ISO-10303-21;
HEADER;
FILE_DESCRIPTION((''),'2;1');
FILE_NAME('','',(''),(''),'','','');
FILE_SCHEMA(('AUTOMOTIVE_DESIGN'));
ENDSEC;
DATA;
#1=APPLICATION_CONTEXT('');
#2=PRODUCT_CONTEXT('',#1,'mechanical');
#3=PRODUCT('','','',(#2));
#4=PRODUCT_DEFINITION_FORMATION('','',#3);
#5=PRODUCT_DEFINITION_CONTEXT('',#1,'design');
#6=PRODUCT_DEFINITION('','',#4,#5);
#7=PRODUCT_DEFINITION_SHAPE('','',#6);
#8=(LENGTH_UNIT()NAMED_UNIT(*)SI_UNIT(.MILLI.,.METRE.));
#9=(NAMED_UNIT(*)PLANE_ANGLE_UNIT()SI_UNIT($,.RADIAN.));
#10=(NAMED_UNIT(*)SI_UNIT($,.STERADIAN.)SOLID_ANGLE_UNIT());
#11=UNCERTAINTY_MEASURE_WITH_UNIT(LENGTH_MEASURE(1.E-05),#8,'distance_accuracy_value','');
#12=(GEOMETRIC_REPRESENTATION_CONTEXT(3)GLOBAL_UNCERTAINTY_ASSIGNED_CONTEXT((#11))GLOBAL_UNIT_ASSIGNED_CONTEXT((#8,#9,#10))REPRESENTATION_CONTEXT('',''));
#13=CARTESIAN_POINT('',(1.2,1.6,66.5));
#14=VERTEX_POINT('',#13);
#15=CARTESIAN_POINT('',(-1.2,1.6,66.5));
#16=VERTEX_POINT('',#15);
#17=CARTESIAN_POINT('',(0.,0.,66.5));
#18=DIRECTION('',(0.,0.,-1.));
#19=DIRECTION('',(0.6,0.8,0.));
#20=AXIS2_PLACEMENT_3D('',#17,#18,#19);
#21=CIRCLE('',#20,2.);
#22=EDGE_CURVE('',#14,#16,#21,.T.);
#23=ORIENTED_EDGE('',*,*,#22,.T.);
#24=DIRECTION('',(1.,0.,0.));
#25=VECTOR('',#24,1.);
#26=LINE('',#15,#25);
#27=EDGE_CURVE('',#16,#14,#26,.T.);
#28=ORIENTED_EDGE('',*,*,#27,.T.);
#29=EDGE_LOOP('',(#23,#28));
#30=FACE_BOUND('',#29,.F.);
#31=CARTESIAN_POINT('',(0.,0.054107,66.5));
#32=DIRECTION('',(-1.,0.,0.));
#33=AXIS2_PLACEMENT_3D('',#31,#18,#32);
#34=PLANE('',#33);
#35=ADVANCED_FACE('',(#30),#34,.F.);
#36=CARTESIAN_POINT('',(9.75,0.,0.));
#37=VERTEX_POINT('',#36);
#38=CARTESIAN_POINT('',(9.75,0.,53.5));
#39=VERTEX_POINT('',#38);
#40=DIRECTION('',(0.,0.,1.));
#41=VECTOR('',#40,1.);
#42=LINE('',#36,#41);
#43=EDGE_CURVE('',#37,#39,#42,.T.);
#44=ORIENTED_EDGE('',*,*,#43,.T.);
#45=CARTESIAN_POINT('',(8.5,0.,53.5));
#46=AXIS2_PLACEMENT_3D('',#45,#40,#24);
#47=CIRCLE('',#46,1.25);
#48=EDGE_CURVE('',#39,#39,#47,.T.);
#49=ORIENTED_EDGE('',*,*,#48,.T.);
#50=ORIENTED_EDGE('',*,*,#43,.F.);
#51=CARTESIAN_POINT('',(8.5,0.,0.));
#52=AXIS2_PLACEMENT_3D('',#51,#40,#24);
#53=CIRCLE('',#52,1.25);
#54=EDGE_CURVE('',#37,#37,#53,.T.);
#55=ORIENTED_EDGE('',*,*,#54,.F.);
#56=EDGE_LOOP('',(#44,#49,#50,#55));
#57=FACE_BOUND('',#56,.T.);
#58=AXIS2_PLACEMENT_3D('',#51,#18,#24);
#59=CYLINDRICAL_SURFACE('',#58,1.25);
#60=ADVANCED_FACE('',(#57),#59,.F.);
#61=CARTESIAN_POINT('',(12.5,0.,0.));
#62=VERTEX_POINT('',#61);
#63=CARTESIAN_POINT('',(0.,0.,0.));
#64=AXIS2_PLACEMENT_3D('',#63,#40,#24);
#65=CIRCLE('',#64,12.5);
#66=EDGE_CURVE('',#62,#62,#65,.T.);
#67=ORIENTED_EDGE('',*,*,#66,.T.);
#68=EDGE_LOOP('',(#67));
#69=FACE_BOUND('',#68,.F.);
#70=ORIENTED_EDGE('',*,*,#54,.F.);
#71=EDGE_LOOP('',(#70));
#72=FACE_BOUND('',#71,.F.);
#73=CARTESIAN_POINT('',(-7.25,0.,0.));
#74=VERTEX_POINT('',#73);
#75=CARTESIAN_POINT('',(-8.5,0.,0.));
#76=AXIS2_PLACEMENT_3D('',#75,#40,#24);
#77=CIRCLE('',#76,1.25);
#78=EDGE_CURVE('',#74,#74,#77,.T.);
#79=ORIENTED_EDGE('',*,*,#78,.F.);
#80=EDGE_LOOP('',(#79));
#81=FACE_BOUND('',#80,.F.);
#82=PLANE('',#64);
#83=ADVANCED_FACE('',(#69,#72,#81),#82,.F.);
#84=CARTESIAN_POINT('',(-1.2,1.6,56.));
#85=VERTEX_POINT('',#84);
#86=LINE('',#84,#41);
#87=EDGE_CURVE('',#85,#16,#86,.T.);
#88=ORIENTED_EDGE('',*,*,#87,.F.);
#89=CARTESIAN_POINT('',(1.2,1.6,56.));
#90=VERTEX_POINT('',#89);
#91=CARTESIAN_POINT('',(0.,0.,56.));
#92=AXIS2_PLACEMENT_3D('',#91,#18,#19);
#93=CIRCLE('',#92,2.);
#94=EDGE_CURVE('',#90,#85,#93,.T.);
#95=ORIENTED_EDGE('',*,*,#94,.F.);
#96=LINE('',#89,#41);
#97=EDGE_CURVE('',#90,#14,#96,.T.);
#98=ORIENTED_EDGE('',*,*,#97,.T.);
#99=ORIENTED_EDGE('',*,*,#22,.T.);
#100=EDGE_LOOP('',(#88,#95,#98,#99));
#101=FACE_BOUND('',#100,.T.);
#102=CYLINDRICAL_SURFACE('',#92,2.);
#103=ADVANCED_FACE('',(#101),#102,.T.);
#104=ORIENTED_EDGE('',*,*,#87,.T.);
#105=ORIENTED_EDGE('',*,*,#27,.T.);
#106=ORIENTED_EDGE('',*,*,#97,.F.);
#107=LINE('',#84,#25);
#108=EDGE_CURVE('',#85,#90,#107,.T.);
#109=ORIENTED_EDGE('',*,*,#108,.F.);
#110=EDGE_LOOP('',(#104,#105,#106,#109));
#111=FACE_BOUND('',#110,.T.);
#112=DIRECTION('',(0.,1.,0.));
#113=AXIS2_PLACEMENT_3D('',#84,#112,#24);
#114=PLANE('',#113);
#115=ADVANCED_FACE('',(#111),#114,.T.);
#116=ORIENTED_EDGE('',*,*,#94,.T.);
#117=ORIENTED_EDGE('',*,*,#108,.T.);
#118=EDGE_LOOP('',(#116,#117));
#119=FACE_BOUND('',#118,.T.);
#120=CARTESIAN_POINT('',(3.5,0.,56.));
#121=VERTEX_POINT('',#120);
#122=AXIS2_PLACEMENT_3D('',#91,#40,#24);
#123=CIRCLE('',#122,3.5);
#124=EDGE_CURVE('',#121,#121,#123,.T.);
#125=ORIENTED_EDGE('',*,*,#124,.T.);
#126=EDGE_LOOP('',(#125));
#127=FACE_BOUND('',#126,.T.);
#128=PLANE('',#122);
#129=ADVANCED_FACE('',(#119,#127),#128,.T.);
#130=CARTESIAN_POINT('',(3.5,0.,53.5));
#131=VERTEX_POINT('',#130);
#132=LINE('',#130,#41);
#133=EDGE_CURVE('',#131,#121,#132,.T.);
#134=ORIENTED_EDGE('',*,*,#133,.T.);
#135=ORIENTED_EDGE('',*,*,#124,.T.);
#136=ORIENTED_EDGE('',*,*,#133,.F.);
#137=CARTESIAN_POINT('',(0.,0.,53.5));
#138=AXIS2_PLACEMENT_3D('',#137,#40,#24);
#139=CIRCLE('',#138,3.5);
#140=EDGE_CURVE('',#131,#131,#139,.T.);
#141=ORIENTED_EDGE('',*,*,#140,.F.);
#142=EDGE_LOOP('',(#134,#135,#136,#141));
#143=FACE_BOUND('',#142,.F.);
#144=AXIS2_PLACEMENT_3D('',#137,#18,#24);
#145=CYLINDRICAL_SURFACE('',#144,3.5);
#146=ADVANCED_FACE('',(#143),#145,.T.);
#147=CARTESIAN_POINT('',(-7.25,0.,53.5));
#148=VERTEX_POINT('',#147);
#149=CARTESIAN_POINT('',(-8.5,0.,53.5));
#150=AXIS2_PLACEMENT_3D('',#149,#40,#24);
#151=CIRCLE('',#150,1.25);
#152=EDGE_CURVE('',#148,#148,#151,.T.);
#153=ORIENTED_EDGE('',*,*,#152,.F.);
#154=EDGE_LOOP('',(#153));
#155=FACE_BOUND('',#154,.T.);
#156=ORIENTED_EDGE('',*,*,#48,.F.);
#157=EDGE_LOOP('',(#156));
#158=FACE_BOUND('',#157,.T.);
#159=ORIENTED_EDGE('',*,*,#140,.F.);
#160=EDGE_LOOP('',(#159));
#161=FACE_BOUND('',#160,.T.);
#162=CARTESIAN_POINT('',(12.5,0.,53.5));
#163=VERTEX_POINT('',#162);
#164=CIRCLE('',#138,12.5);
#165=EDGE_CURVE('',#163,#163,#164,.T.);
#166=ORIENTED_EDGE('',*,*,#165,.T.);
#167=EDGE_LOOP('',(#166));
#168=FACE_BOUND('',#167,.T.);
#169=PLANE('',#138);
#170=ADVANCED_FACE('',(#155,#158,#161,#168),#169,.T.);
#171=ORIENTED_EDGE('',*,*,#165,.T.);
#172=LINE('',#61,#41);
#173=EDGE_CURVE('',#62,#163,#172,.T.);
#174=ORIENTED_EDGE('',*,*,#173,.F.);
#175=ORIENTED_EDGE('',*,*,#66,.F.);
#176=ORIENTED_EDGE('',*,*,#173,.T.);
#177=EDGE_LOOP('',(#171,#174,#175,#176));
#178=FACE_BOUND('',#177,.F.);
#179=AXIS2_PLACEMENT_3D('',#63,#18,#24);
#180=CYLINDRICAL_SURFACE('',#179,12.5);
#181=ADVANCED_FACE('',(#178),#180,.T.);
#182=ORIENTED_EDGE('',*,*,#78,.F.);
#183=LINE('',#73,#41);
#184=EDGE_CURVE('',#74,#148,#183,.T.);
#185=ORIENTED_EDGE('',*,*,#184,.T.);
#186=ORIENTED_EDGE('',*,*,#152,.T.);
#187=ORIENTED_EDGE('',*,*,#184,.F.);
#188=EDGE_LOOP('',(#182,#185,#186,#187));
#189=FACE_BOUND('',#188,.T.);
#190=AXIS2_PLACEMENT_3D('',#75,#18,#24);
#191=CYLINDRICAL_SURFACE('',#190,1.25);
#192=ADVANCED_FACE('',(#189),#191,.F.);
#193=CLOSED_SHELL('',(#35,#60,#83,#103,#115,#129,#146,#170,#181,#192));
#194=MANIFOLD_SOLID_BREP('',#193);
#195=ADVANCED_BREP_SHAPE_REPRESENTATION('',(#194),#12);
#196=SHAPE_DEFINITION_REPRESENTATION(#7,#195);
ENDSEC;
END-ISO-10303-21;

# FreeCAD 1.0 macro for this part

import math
import FreeCAD as App
import Part
import Sketcher
Q = App.Units.Quantity

doc = App.newDocument("Part")
body = doc.addObject("PartDesign::Body", "Body")

sketch1 = body.newObject("Sketcher::SketchObject", "Sketch")
sketch1.AttachmentSupport = (doc.getObject("XY_Plane"), [""])
sketch1.MapMode = "FlatFace"
sketch1.addGeometry([
    Part.Circle(App.Vector(0, 0, 0), App.Vector(0, 0, 1), 12.5),
    Part.Circle(App.Vector(-8.5, 0, 0), App.Vector(0, 0, 1), 1.25),
    Part.Circle(App.Vector(8.5, 0, 0), App.Vector(0, 0, 1), 1.25),
], False)
sketch1.addConstraint([
    Sketcher.Constraint("Coincident", 0, 3, -1, 1),
    Sketcher.Constraint("Equal", 1, 2),
    Sketcher.Constraint("Symmetric", 1, 3, 2, 3, -1, 1),
    Sketcher.Constraint("PointOnObject", 1, 3, -1),
    Sketcher.Constraint("Diameter", 0, Q("25 mm")),
    Sketcher.Constraint("Diameter", 1, Q("2.5 mm")),
    Sketcher.Constraint("DistanceX", 1, 3, 2, 3, Q("17 mm")),
])
pad1 = body.newObject("PartDesign::Pad", "Pad")
pad1.Profile = sketch1
pad1.Length = 53.5

sketch2 = body.newObject("Sketcher::SketchObject", "Sketch001")
sketch2.AttachmentSupport = (doc.getObject("XY_Plane"), [""])
sketch2.MapMode = "FlatFace"
sketch2.AttachmentOffset = App.Placement(App.Vector(0, 0, 53.5), App.Rotation())
sketch2.addGeometry(Part.Circle(App.Vector(0, 0, 0), App.Vector(0, 0, 1), 3.5), False)
sketch2.addConstraint([
    Sketcher.Constraint("Coincident", 0, 3, -1, 1),
    Sketcher.Constraint("Diameter", 0, Q("7 mm")),
])
pad2 = body.newObject("PartDesign::Pad", "Pad001")
pad2.Profile = sketch2
pad2.Length = 2.5

sketch3 = body.newObject("Sketcher::SketchObject", "Sketch002")
sketch3.AttachmentSupport = (doc.getObject("XY_Plane"), [""])
sketch3.MapMode = "FlatFace"
sketch3.AttachmentOffset = App.Placement(App.Vector(0, 0, 56), App.Rotation())
sketch3.addGeometry([
    Part.LineSegment(App.Vector(1.2, 1.6, 0), App.Vector(-1.2, 1.6, 0)),
    Part.ArcOfCircle(Part.Circle(App.Vector(0, 0, 0), App.Vector(0, 0, 1), 2), math.radians(126.869898), math.radians(413.130102)),
], False)
sketch3.addConstraint([
    Sketcher.Constraint("Coincident", 0, 1, 1, 2),
    Sketcher.Constraint("Coincident", 1, 1, 0, 2),
    Sketcher.Constraint("Horizontal", 0),
    Sketcher.Constraint("Coincident", 1, 3, -1, 1),
    Sketcher.Constraint("Radius", 1, Q("2 mm")),
    Sketcher.Constraint("DistanceX", 0, 2, 0, 1, Q("2.4 mm")),
])
pad3 = body.newObject("PartDesign::Pad", "Pad002")
pad3.Profile = sketch3
pad3.Length = 10.5

doc.recompute()
